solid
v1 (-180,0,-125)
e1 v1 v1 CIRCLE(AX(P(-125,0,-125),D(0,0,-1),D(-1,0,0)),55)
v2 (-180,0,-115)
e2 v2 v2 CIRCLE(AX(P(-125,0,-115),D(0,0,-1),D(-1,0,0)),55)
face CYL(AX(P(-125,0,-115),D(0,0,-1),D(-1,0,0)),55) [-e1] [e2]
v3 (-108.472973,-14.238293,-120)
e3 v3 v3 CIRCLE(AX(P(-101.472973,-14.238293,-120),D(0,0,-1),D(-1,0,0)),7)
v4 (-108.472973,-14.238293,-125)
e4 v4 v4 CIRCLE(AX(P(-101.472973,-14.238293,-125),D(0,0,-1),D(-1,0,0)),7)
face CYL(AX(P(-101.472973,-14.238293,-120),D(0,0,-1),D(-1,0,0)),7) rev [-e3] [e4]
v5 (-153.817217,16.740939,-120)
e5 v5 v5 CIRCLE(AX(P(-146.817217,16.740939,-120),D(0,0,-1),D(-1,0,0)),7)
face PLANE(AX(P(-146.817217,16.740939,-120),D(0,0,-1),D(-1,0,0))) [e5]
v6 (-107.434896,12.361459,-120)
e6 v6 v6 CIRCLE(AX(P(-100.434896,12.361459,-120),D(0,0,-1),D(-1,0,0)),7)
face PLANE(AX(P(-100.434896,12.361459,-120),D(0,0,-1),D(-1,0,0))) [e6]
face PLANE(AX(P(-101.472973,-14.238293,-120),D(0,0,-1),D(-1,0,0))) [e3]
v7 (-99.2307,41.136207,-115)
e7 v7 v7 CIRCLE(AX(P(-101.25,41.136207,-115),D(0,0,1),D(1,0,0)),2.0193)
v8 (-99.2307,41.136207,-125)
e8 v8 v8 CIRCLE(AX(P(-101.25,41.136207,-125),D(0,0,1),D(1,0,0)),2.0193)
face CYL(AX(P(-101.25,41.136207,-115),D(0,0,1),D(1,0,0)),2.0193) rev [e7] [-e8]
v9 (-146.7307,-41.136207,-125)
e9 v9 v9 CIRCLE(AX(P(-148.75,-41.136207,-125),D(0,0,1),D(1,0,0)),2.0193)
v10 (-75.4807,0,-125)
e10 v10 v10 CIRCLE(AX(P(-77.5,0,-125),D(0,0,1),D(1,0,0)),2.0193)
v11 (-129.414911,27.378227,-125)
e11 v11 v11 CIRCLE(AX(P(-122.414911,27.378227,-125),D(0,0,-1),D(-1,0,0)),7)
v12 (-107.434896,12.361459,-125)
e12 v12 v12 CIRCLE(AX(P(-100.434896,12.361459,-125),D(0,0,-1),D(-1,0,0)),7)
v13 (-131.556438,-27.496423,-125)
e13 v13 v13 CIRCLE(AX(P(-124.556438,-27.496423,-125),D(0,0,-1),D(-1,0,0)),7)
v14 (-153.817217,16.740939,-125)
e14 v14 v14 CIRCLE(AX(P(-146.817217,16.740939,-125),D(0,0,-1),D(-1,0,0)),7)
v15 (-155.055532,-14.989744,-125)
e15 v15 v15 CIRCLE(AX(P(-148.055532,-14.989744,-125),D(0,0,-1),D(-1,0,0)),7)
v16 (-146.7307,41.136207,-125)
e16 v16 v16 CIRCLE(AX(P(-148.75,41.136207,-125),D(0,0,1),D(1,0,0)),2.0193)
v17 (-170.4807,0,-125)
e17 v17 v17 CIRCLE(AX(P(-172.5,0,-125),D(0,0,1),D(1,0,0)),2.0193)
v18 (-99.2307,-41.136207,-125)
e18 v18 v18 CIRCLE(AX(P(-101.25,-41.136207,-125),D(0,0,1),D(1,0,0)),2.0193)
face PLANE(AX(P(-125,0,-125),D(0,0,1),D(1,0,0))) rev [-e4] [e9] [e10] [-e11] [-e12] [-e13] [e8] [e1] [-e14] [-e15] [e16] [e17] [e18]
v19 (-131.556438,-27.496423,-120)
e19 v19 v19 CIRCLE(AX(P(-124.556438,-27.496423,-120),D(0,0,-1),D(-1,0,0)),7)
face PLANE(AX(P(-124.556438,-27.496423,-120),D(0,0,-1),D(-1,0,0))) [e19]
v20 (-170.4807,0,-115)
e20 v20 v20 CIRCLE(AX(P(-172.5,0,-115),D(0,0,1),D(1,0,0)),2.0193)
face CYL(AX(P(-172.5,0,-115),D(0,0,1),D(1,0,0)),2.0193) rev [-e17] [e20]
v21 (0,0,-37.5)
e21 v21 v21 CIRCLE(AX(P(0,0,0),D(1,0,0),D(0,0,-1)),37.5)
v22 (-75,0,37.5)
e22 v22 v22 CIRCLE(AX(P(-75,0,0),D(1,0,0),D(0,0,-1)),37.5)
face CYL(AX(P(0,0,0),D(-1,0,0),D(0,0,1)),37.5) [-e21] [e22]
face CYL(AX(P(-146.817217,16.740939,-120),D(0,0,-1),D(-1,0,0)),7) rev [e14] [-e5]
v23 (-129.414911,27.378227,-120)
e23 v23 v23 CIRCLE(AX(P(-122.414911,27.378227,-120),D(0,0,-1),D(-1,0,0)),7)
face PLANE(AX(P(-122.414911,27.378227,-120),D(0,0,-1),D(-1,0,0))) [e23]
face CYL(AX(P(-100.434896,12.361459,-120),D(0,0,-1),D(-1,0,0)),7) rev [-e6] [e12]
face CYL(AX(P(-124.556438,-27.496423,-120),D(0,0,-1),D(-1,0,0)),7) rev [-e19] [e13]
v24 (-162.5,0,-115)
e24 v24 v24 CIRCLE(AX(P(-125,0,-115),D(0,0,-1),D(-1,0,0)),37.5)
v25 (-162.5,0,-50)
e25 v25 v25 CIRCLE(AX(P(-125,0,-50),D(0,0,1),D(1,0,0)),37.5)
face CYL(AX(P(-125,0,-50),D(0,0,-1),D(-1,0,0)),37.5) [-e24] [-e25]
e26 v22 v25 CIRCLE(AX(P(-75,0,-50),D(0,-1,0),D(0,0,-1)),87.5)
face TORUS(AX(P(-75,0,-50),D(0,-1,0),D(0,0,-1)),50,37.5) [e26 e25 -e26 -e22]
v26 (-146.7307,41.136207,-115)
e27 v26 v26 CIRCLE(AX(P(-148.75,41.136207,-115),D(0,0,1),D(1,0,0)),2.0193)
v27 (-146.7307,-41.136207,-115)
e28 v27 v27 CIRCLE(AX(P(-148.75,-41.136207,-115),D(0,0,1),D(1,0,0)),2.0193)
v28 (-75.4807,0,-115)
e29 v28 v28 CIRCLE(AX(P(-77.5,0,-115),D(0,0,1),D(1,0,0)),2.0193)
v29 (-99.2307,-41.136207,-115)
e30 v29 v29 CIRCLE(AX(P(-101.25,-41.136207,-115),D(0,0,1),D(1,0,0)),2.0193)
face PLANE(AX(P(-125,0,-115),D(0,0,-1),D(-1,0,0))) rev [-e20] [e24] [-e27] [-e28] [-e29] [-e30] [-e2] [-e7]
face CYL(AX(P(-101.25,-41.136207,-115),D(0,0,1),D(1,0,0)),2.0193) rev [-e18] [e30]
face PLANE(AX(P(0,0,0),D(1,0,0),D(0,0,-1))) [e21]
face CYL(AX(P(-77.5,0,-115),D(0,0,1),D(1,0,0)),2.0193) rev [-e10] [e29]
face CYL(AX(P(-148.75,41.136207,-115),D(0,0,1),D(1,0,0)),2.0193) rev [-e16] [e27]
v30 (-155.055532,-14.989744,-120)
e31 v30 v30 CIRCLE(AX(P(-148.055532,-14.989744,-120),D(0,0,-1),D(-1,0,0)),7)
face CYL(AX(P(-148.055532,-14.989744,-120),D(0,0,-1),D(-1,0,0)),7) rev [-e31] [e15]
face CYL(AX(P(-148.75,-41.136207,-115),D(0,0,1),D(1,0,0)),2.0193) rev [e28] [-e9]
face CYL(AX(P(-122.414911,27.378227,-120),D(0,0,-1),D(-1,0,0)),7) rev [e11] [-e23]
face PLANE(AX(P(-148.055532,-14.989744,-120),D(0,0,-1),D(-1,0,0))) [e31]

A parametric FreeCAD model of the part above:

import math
import FreeCAD as App
import Part
import Sketcher

V = App.Vector

doc = App.newDocument("Part")
params = doc.addObject("Spreadsheet::Sheet", "Params")
for row, (alias, value) in enumerate([
    ("sketch1_diameter", "75 mm"),
    ("sketch2_radius", "50 mm"),
    ("sketch2_width", "75 mm"),
    ("sketch3_diameter", "110 mm"),
    ("pad1_length", "10 mm"),
    ("hole_diameter", "4.0386 mm"),
    ("hole_depth", "10 mm"),
    ("sketch5_diameter", "14 mm"),
    ("pocket1_length", "5 mm"),
], start=1):
    params.set(f"A{row}", alias)
    params.set(f"B{row}", "=" + value)
    params.setAlias(f"B{row}", alias)

body = doc.addObject("PartDesign::Body", "Body")

# Sketch on YZ plane
sketch1 = body.newObject("Sketcher::SketchObject", "Sketch")
sketch1.AttachmentSupport = (doc.getObject("YZ_Plane"), [""])
sketch1.MapMode = "FlatFace"
sketch1.addGeometry(Part.Circle(V(0, 0, 0), V(0, 0, 1), 38), False)
sketch1.addConstraint(Sketcher.Constraint("Coincident", 0, 3, -1, 1))
sketch1.addConstraint(Sketcher.Constraint("Diameter", 0, 75.0))
sketch1.setExpression("Constraints[1]", "Params.sketch1_diameter")

# Sketch on XZ plane
sketch2 = body.newObject("Sketcher::SketchObject", "Sketch001")
sketch2.AttachmentSupport = (doc.getObject("XZ_Plane"), [""])
sketch2.MapMode = "FlatFace"
sketch2.addGeometry(Part.LineSegment(V(0, 0, 0), V(-75, 0, 0)), False)
sketch2.addGeometry(Part.ArcOfCircle(Part.Circle(V(-75, -50, 0), V(0, 0, 1), 50), math.radians(90), math.radians(180)), False)
sketch2.addGeometry(Part.LineSegment(V(-125, -50, 0), V(-125, -125, 0)), False)
sketch2.addConstraint(Sketcher.Constraint("Tangent", 0, 2, 1, 1))
sketch2.addConstraint(Sketcher.Constraint("Tangent", 1, 2, 2, 1))
sketch2.addConstraint(Sketcher.Constraint("Horizontal", 0))
sketch2.addConstraint(Sketcher.Constraint("Vertical", 2))
sketch2.addConstraint(Sketcher.Constraint("Coincident", 0, 1, -1, 1))
sketch2.addConstraint(Sketcher.Constraint("Equal", 0, 2))
sketch2.addConstraint(Sketcher.Constraint("Radius", 1, 50.0))
sketch2.addConstraint(Sketcher.Constraint("DistanceX", 0, 2, 0, 1, 75.0))
sketch2.setExpression("Constraints[6]", "Params.sketch2_radius")
sketch2.setExpression("Constraints[7]", "Params.sketch2_width")
doc.recompute()

additivepipe = body.newObject("PartDesign::AdditivePipe", "AdditivePipe")
additivepipe.Profile = sketch1
additivepipe.Spine = (sketch2, ["Edge1", "Edge2", "Edge3"])

# Sketch on XY plane
sketch3 = body.newObject("Sketcher::SketchObject", "Sketch002")
sketch3.AttachmentSupport = (doc.getObject("XY_Plane"), [""])
sketch3.MapMode = "FlatFace"
sketch3.AttachmentOffset = App.Placement(V(0, 0, -125), App.Rotation())
sketch3.addGeometry(Part.Circle(V(-125, 0, 0), V(0, 0, 1), 55), False)
sketch3.addConstraint(Sketcher.Constraint("PointOnObject", 0, 3, -1))
sketch3.addConstraint(Sketcher.Constraint("Diameter", 0, 110.0))
sketch3.addConstraint(Sketcher.Constraint("DistanceX", 0, 3, -1, 1, 125.0))
sketch3.setExpression("Constraints[1]", "Params.sketch3_diameter")
pad1 = body.newObject("PartDesign::Pad", "Pad")
pad1.Profile = sketch3
pad1.setExpression("Length", "Params.pad1_length")

# Sketch on XY plane
sketch4 = body.newObject("Sketcher::SketchObject", "Sketch003")
sketch4.AttachmentSupport = (doc.getObject("XY_Plane"), [""])
sketch4.MapMode = "FlatFace"
sketch4.AttachmentOffset = App.Placement(V(0, 0, -115), App.Rotation())
sketch4.addGeometry(Part.Circle(V(-148.8, 41.1, 0), V(0, 0, 1), 2), False)
sketch4.addGeometry(Part.Circle(V(-172.5, 0, 0), V(0, 0, 1), 2), False)
sketch4.addGeometry(Part.Circle(V(-148.8, -41.1, 0), V(0, 0, 1), 2), False)
sketch4.addGeometry(Part.Circle(V(-101.2, -41.1, 0), V(0, 0, 1), 2), False)
sketch4.addGeometry(Part.Circle(V(-77.5, 0, 0), V(0, 0, 1), 2), False)
sketch4.addGeometry(Part.Circle(V(-101.2, 41.1, 0), V(0, 0, 1), 2), False)
sketch4.addConstraint(Sketcher.Constraint("Equal", 0, 1))
sketch4.addConstraint(Sketcher.Constraint("Equal", 1, 2))
sketch4.addConstraint(Sketcher.Constraint("Equal", 2, 3))
sketch4.addConstraint(Sketcher.Constraint("Equal", 3, 4))
sketch4.addConstraint(Sketcher.Constraint("Equal", 4, 5))
sketch4.addConstraint(Sketcher.Constraint("Symmetric", 0, 3, 2, 3, -1))
sketch4.addConstraint(Sketcher.Constraint("Symmetric", 3, 3, 5, 3, -1))
sketch4.addConstraint(Sketcher.Constraint("PointOnObject", 1, 3, -1))
sketch4.addConstraint(Sketcher.Constraint("PointOnObject", 4, 3, -1))
sketch4.addConstraint(Sketcher.Constraint("Horizontal", 2, 3, 3, 3))
sketch4.addConstraint(Sketcher.Constraint("DistanceX", 1, 3, 4, 3, 95.0))
sketch4.addConstraint(Sketcher.Constraint("Diameter", 0, 4.0386))
sketch4.addConstraint(Sketcher.Constraint("DistanceX", 1, 3, -1, 1, 172.5))
sketch4.addConstraint(Sketcher.Constraint("DistanceX", 2, 3, 3, 3, 47.5))
sketch4.addConstraint(Sketcher.Constraint("DistanceX", 0, 3, -1, 1, 148.75))
sketch4.addConstraint(Sketcher.Constraint("DistanceY", -1, 1, 0, 3, 41.136207))
doc.recompute()
hole = body.newObject("PartDesign::Hole", "Hole")
hole.Profile = sketch4
hole.ThreadType = "None"
hole.setExpression("Diameter", "Params.hole_diameter")
hole.DepthType = "Dimension"
hole.setExpression("Depth", "Params.hole_depth")
hole.DrillPoint = "Flat"

# Sketch on XY plane
sketch5 = body.newObject("Sketcher::SketchObject", "Sketch004")
sketch5.AttachmentSupport = (doc.getObject("XY_Plane"), [""])
sketch5.MapMode = "FlatFace"
sketch5.AttachmentOffset = App.Placement(V(0, 0, -125), App.Rotation())
sketch5.addGeometry(Part.Circle(V(-147, 17, 0), V(0, 0, 1), 7), False)
sketch5.addGeometry(Part.Circle(V(-122, 27, 0), V(0, 0, 1), 7), False)
sketch5.addGeometry(Part.Circle(V(-100, 12, 0), V(0, 0, 1), 7), False)
sketch5.addGeometry(Part.Circle(V(-101, -14, 0), V(0, 0, 1), 7), False)
sketch5.addGeometry(Part.Circle(V(-125, -27, 0), V(0, 0, 1), 7), False)
sketch5.addGeometry(Part.Circle(V(-148, -15, 0), V(0, 0, 1), 7), False)
sketch5.addConstraint(Sketcher.Constraint("Equal", 0, 1))
sketch5.addConstraint(Sketcher.Constraint("Equal", 1, 2))
sketch5.addConstraint(Sketcher.Constraint("Equal", 2, 3))
sketch5.addConstraint(Sketcher.Constraint("Equal", 3, 4))
sketch5.addConstraint(Sketcher.Constraint("Equal", 4, 5))
sketch5.addConstraint(Sketcher.Constraint("Diameter", 0, 14.0))
sketch5.addConstraint(Sketcher.Constraint("DistanceY", -1, 1, 0, 3, 16.740939))
sketch5.addConstraint(Sketcher.Constraint("DistanceX", 1, 3, -1, 1, 122.414911))
sketch5.addConstraint(Sketcher.Constraint("DistanceY", -1, 1, 2, 3, 12.361459))
sketch5.addConstraint(Sketcher.Constraint("DistanceX", 4, 3, -1, 1, 124.556438))
sketch5.addConstraint(Sketcher.Constraint("DistanceY", 2, 3, 1, 3, 15.016768))
sketch5.addConstraint(Sketcher.Constraint("DistanceX", 0, 3, 2, 3, 46.382321))
sketch5.addConstraint(Sketcher.Constraint("DistanceY", 3, 3, 2, 3, 26.599752))
sketch5.addConstraint(Sketcher.Constraint("DistanceX", 1, 3, 3, 3, 20.941939))
sketch5.addConstraint(Sketcher.Constraint("DistanceY", 4, 3, 3, 3, 13.25813))
sketch5.addConstraint(Sketcher.Constraint("DistanceX", 0, 3, 4, 3, 22.260778))
sketch5.addConstraint(Sketcher.Constraint("DistanceY", 4, 3, 5, 3, 12.506678))
sketch5.addConstraint(Sketcher.Constraint("DistanceX", 5, 3, 3, 3, 46.58256))
sketch5.setExpression("Constraints[5]", "Params.sketch5_diameter")
pocket1 = body.newObject("PartDesign::Pocket", "Pocket")
pocket1.Profile = sketch5
pocket1.setExpression("Length", "Params.pocket1_length")
pocket1.Reversed = True

doc.recompute()
